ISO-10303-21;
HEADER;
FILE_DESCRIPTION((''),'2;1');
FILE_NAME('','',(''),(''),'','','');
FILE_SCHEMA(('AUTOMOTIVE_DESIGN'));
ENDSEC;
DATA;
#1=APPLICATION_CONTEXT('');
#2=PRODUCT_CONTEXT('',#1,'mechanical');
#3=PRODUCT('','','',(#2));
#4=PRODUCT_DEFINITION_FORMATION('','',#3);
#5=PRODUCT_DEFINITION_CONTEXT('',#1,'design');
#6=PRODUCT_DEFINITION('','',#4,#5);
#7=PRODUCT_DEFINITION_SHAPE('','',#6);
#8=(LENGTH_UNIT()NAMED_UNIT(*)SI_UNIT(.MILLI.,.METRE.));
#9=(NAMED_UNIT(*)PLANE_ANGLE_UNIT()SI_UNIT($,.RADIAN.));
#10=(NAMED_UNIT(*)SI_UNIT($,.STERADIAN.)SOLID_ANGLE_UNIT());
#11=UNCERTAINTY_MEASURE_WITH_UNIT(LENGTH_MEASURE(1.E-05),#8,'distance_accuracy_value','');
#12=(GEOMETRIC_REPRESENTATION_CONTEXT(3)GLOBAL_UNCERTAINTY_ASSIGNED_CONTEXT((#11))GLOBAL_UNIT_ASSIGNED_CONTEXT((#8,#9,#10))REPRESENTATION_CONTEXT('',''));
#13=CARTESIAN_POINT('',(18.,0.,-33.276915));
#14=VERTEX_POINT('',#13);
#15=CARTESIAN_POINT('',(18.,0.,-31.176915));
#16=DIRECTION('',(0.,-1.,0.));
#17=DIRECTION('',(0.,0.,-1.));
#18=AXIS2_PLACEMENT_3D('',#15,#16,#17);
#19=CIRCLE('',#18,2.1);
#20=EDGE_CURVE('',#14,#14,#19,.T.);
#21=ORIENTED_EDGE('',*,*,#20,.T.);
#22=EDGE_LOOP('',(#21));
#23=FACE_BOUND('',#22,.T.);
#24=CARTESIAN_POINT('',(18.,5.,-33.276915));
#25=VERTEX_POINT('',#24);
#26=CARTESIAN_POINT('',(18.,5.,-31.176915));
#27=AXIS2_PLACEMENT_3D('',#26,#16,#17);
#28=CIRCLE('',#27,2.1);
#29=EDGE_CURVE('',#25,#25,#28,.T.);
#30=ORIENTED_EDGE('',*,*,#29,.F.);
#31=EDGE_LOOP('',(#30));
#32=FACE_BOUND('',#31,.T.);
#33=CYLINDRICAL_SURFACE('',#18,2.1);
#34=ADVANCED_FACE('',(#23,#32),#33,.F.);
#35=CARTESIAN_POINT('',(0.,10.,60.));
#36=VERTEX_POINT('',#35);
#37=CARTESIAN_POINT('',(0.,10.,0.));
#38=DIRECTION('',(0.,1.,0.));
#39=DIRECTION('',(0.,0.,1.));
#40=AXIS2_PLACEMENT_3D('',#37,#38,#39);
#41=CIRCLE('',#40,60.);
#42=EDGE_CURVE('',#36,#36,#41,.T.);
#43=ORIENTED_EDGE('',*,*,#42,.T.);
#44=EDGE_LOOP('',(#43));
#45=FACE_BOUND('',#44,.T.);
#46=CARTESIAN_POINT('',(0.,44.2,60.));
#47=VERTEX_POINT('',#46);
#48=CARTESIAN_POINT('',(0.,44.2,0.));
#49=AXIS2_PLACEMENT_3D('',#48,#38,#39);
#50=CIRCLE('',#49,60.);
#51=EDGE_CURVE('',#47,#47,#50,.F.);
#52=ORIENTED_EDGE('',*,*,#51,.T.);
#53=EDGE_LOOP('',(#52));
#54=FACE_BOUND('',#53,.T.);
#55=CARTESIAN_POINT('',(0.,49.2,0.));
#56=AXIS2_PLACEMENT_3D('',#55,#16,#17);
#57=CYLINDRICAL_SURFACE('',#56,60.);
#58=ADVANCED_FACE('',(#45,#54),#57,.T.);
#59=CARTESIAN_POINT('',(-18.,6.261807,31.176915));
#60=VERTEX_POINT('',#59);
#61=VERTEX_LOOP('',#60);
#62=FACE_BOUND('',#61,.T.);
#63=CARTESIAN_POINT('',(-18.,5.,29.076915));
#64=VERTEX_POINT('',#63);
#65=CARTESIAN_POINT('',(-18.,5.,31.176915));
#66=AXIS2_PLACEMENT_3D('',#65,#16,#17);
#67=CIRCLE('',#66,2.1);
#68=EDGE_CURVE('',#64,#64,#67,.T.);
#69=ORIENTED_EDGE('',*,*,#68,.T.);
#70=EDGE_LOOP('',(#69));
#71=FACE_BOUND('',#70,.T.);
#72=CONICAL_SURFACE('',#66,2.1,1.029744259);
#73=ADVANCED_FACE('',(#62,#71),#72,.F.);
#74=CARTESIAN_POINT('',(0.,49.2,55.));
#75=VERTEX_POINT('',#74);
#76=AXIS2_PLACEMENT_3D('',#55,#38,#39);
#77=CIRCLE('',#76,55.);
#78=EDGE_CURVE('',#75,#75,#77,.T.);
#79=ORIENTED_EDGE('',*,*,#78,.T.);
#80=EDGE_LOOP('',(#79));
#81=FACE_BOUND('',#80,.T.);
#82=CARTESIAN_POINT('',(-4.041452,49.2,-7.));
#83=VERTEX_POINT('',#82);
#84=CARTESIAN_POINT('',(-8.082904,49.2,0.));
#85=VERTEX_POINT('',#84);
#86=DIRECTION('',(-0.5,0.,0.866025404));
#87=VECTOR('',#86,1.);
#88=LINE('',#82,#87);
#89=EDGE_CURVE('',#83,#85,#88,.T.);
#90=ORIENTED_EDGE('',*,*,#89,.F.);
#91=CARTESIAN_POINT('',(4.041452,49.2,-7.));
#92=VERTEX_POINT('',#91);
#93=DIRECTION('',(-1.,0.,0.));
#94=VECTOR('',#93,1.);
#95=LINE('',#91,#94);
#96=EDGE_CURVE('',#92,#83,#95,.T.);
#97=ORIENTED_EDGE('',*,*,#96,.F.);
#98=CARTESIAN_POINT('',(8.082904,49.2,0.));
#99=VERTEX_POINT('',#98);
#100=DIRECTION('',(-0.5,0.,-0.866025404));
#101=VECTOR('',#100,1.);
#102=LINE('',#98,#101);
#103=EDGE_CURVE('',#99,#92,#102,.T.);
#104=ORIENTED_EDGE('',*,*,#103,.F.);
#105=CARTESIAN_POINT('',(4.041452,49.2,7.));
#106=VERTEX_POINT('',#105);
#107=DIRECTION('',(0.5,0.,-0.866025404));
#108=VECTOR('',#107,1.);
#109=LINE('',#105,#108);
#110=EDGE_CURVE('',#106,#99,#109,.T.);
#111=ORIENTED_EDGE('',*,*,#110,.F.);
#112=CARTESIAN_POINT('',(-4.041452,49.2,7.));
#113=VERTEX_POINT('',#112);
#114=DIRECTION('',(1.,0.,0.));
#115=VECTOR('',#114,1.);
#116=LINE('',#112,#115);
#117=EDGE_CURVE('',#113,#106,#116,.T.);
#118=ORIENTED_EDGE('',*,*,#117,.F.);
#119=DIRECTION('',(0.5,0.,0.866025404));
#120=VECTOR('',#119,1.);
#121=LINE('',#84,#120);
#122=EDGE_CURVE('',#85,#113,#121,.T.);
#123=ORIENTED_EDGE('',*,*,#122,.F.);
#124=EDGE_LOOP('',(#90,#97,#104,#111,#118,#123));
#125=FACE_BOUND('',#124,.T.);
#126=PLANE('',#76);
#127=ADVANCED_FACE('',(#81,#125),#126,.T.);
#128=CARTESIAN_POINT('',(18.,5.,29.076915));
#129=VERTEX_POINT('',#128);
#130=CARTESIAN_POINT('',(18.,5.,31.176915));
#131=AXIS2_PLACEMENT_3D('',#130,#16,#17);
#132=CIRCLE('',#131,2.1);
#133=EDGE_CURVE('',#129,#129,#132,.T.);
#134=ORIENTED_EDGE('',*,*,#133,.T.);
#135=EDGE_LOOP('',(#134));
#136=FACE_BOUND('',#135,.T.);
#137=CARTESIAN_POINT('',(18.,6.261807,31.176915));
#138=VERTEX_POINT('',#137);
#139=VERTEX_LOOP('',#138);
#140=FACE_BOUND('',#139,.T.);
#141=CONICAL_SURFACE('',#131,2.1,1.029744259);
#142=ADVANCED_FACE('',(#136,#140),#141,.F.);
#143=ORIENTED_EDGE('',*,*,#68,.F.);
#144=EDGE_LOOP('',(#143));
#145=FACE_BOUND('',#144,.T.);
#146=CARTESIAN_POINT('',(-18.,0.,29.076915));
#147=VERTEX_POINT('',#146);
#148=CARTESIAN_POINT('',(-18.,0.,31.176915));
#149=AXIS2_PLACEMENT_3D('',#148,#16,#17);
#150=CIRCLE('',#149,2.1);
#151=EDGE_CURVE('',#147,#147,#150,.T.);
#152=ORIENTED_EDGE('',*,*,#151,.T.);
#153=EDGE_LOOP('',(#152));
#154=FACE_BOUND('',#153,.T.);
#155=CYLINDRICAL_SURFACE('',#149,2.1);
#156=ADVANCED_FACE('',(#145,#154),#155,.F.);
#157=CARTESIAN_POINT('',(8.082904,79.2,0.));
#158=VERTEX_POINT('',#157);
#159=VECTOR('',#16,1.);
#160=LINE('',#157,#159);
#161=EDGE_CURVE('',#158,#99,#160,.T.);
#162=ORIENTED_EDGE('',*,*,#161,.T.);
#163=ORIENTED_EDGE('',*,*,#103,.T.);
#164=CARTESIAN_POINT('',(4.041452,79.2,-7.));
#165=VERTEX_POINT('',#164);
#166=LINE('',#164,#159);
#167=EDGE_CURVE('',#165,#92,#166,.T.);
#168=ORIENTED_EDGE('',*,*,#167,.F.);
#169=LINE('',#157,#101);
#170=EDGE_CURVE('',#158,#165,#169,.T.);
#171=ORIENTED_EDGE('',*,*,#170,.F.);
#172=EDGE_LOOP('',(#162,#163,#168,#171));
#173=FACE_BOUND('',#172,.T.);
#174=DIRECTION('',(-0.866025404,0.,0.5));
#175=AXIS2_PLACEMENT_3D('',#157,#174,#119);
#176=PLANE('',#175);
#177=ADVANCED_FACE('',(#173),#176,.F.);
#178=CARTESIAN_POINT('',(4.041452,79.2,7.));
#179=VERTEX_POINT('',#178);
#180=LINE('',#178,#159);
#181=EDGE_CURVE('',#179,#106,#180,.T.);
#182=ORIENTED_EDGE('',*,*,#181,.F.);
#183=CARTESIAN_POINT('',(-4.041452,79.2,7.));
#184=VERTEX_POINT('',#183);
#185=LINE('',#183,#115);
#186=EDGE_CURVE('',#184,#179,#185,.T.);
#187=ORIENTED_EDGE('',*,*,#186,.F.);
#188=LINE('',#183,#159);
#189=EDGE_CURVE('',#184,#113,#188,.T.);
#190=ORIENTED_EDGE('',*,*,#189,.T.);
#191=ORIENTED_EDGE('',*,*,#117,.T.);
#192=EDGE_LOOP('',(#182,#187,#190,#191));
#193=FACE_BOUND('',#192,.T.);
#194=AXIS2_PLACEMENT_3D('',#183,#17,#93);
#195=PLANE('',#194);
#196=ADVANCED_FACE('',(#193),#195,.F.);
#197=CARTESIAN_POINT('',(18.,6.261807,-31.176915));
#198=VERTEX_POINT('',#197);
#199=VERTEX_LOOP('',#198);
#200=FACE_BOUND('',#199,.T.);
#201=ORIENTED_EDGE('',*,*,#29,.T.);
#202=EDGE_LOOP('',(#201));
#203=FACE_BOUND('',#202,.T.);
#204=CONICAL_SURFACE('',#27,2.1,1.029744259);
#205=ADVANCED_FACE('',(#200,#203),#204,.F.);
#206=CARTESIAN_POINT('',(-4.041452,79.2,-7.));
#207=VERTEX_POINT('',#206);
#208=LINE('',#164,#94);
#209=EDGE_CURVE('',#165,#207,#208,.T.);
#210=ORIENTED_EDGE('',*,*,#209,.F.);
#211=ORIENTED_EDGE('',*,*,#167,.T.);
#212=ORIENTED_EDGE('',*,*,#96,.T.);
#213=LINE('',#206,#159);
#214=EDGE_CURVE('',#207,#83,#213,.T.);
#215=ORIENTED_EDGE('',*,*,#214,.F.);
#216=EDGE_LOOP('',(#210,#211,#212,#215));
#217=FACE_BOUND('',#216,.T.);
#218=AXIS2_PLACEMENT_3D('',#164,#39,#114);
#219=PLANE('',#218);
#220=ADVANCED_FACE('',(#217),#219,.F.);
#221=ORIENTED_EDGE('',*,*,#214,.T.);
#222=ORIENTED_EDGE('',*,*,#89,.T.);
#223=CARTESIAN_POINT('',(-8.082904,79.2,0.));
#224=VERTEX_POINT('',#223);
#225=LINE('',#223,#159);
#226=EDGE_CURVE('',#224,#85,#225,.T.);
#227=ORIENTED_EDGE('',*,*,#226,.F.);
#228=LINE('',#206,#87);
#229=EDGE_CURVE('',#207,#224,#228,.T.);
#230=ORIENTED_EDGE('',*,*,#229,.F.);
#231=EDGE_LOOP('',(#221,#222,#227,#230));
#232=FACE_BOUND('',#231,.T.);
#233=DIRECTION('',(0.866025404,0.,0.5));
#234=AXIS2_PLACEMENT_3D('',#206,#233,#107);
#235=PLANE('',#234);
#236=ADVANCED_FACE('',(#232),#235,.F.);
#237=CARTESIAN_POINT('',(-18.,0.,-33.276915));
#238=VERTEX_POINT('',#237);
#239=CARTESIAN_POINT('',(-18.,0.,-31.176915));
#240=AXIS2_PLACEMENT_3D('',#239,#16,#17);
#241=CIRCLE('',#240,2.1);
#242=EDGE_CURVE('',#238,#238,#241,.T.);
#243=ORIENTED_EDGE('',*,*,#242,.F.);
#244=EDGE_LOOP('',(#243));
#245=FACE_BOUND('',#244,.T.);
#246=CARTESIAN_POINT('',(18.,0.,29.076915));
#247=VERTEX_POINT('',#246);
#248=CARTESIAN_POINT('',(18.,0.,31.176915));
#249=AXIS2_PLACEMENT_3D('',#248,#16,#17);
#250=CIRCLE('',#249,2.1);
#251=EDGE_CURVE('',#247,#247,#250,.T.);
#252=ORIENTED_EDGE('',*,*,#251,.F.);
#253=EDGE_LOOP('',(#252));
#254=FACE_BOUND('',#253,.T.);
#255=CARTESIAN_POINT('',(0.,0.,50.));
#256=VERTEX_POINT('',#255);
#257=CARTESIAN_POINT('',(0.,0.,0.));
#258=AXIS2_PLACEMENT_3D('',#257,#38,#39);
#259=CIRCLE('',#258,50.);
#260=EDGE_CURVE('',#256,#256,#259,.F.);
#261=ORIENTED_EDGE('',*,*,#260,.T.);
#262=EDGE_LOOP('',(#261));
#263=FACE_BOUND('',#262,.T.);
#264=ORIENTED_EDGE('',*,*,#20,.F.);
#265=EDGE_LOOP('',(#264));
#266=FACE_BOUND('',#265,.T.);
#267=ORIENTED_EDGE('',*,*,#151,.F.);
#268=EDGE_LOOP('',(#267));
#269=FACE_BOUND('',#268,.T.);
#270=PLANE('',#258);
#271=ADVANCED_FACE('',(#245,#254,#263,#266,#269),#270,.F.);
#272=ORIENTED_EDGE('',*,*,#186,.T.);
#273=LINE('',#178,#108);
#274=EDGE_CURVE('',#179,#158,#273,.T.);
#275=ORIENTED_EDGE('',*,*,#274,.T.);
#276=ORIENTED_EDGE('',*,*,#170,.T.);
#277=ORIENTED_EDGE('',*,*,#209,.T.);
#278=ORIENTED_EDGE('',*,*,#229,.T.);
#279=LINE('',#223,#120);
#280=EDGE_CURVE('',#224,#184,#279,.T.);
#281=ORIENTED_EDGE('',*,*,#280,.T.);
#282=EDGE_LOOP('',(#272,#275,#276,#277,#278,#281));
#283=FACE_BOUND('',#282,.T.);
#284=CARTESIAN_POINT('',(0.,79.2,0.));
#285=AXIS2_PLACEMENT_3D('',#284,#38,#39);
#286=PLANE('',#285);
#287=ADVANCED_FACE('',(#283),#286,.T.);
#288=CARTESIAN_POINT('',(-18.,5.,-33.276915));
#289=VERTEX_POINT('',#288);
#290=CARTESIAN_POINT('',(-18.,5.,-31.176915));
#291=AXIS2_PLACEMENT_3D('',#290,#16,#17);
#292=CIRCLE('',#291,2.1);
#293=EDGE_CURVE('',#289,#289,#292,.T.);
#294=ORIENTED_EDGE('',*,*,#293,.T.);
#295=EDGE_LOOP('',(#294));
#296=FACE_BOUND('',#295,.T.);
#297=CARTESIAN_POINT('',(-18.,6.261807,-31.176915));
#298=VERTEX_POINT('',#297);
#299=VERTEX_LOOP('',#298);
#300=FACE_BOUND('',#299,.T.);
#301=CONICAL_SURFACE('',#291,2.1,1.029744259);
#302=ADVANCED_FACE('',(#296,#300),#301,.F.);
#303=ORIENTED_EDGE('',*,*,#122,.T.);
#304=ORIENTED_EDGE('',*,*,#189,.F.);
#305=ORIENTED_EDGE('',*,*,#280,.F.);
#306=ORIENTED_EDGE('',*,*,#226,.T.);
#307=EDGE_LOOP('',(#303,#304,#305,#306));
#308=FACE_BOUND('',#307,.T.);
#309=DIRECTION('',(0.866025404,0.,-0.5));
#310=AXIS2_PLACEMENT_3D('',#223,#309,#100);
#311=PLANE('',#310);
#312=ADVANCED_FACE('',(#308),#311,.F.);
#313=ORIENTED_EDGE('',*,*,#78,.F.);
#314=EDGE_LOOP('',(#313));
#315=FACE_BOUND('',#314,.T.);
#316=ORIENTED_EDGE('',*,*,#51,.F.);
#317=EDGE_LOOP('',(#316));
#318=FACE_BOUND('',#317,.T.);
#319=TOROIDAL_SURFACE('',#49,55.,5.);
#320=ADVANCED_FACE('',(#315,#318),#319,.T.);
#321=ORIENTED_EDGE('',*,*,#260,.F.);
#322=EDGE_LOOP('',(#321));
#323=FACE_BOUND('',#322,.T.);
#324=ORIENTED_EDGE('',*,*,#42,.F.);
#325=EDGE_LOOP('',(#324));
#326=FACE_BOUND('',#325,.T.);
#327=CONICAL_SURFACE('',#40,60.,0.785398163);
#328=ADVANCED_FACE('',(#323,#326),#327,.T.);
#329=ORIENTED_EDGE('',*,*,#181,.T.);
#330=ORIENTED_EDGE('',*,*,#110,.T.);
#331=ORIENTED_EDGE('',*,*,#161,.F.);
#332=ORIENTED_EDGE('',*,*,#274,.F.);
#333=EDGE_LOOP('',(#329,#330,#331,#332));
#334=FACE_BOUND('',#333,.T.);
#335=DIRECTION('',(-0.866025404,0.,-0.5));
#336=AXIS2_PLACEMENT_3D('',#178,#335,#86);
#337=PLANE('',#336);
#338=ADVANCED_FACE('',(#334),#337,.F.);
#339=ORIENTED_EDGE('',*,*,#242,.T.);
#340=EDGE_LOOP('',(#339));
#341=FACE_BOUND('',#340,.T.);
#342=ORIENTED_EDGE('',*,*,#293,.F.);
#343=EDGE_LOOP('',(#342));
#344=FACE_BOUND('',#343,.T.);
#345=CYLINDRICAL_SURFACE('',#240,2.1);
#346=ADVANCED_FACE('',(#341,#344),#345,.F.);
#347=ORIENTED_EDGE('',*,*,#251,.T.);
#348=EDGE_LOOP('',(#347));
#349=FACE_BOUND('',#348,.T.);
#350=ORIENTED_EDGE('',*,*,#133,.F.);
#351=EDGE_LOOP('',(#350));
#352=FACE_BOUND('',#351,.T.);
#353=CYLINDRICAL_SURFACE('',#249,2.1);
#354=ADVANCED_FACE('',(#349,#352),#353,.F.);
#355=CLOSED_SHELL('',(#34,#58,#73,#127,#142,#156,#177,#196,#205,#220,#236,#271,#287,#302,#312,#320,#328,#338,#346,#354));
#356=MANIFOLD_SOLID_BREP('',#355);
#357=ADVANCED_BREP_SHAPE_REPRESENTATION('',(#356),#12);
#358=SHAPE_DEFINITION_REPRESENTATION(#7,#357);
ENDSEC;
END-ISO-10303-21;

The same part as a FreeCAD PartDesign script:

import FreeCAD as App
import Part
import Sketcher
from FreeCAD import Vector
Q = App.Units.Quantity


def edges_at(feature, points):
    """Names of the edges that pass closest to the given points."""
    edges = feature.Shape.Edges
    near = lambda p: min(range(len(edges)), key=lambda i: edges[i].distToShape(Part.Vertex(*p))[0])
    return sorted({f"Edge{near(p) + 1}" for p in points})


def add_polygon(sketch, points):
    """Adds a closed chain of lines whose ends are joined by coincident constraints."""
    first, n = sketch.GeometryCount, len(points)
    for a, b in zip(points, points[1:] + points[:1]):
        sketch.addGeometry(Part.LineSegment(App.Vector(*a, 0), App.Vector(*b, 0)), False)
    for i in range(n):
        sketch.addConstraint(Sketcher.Constraint("Coincident", first + i, 2, first + (i + 1) % n, 1))

doc = App.newDocument("Part")
params = doc.addObject("Spreadsheet::Sheet", "Params")
for row, (alias, value) in enumerate([
    ("sketch1_diameter", "120 mm"),
    ("pad1_length", "49.2 mm"),
    ("pad2_length", "30 mm"),
    ("fillet_radius", "5 mm"),
    ("sketch3_diameter", "4.2 mm"),
    ("hole_diameter", "4.2 mm"),
    ("hole_depth", "5 mm"),
    ("chamfer_size", "10 mm"),
], start=1):
    params.set(f"A{row}", alias)
    params.set(f"B{row}", "=" + value)
    params.setAlias(f"B{row}", alias)

body = doc.addObject("PartDesign::Body", "Body")

# Sketch on XZ plane
sketch1 = body.newObject("Sketcher::SketchObject", "Sketch")
sketch1.AttachmentSupport = (doc.getObject("XZ_Plane"), [""])
sketch1.MapMode = "FlatFace"
sketch1.addGeometry(Part.Circle(Vector(0, 0, 0), Vector(0, 0, 1), 60), False)
sketch1.addConstraint(Sketcher.Constraint("Coincident", 0, 3, -1, 1))
sketch1.addConstraint(Sketcher.Constraint("Diameter", 0, 120.0))
sketch1.setExpression("Constraints[1]", "Params.sketch1_diameter")
pad1 = body.newObject("PartDesign::Pad", "Pad")
pad1.Profile = sketch1
pad1.setExpression("Length", "Params.pad1_length")
pad1.Reversed = True

# Sketch on XZ plane
sketch2 = body.newObject("Sketcher::SketchObject", "Sketch001")
sketch2.AttachmentSupport = (doc.getObject("XZ_Plane"), [""])
sketch2.MapMode = "FlatFace"
sketch2.AttachmentOffset = App.Placement(Vector(0, 0, -49.2), App.Rotation())
add_polygon(sketch2, [(-4.041452, -7), (-8.082904, 0), (-4.041452, 7), (4.041452, 7), (8.082904, 0), (4.041452, -7)])  # lines 0-5
sketch2.addConstraint(Sketcher.Constraint("Horizontal", 2))
sketch2.addConstraint(Sketcher.Constraint("Horizontal", 5))
sketch2.addConstraint(Sketcher.Constraint("Symmetric", 0, 2, 3, 2, -1, 1))
sketch2.addConstraint(Sketcher.Constraint("Symmetric", 1, 2, 4, 2, -1, 1))
sketch2.addConstraint(Sketcher.Constraint("PointOnObject", 0, 2, -1))
sketch2.addConstraint(Sketcher.Constraint("Parallel", 0, 3))
sketch2.addConstraint(Sketcher.Constraint("Vertical", 2, 2, 4, 2))
sketch2.addConstraint(Sketcher.Constraint("Angle", 0, Q("120 deg")))
sketch2.addConstraint(Sketcher.Constraint("DistanceY", -1, 1, 1, 2, 7.0))
sketch2.addConstraint(Sketcher.Constraint("DistanceX", 2, 1, 2, 2, 8.082904))
pad2 = body.newObject("PartDesign::Pad", "Pad001")
pad2.Profile = sketch2
pad2.setExpression("Length", "Params.pad2_length")
pad2.Reversed = True
doc.recompute()

fillet = body.newObject("PartDesign::Fillet", "Fillet")
fillet.Base = (pad2, edges_at(pad2, [(-60, 49.2, 0)]))
fillet.setExpression("Radius", "Params.fillet_radius")

# Sketch on XZ plane
sketch3 = body.newObject("Sketcher::SketchObject", "Sketch002")
sketch3.AttachmentSupport = (doc.getObject("XZ_Plane"), [""])
sketch3.MapMode = "FlatFace"
sketch3.addGeometry(Part.Circle(Vector(18, -31.176915, 0), Vector(0, 0, 1), 2.1), False)
sketch3.addGeometry(Part.Circle(Vector(-18, -31.176915, 0), Vector(0, 0, 1), 2.1), False)
sketch3.addGeometry(Part.Circle(Vector(-18, 31.176915, 0), Vector(0, 0, 1), 2.1), False)
sketch3.addGeometry(Part.Circle(Vector(18, 31.176915, 0), Vector(0, 0, 1), 2.1), False)
sketch3.addConstraint(Sketcher.Constraint("Equal", 0, 1))
sketch3.addConstraint(Sketcher.Constraint("Equal", 1, 2))
sketch3.addConstraint(Sketcher.Constraint("Equal", 2, 3))
sketch3.addConstraint(Sketcher.Constraint("Symmetric", 0, 3, 2, 3, -1, 1))
sketch3.addConstraint(Sketcher.Constraint("Symmetric", 1, 3, 3, 3, -1, 1))
sketch3.addConstraint(Sketcher.Constraint("Symmetric", 0, 3, 1, 3, -2))
sketch3.addConstraint(Sketcher.Constraint("Diameter", 0, 4.2))
sketch3.addConstraint(Sketcher.Constraint("DistanceX", -1, 1, 0, 3, 18.0))
sketch3.addConstraint(Sketcher.Constraint("DistanceY", 1, 3, 2, 3, 62.353829))
sketch3.setExpression("Constraints[6]", "Params.sketch3_diameter")
doc.recompute()
hole = body.newObject("PartDesign::Hole", "Hole")
hole.Profile = sketch3
hole.ThreadType = "None"
hole.setExpression("Diameter", "Params.hole_diameter")
hole.DepthType = "Dimension"
hole.setExpression("Depth", "Params.hole_depth")
hole.DrillPoint = "Angled"
hole.DrillPointAngle = 118
doc.recompute()

chamfer = body.newObject("PartDesign::Chamfer", "Chamfer")
chamfer.Base = (hole, edges_at(hole, [(-60, 0, 0)]))
chamfer.setExpression("Size", "Params.chamfer_size")

doc.recompute()
